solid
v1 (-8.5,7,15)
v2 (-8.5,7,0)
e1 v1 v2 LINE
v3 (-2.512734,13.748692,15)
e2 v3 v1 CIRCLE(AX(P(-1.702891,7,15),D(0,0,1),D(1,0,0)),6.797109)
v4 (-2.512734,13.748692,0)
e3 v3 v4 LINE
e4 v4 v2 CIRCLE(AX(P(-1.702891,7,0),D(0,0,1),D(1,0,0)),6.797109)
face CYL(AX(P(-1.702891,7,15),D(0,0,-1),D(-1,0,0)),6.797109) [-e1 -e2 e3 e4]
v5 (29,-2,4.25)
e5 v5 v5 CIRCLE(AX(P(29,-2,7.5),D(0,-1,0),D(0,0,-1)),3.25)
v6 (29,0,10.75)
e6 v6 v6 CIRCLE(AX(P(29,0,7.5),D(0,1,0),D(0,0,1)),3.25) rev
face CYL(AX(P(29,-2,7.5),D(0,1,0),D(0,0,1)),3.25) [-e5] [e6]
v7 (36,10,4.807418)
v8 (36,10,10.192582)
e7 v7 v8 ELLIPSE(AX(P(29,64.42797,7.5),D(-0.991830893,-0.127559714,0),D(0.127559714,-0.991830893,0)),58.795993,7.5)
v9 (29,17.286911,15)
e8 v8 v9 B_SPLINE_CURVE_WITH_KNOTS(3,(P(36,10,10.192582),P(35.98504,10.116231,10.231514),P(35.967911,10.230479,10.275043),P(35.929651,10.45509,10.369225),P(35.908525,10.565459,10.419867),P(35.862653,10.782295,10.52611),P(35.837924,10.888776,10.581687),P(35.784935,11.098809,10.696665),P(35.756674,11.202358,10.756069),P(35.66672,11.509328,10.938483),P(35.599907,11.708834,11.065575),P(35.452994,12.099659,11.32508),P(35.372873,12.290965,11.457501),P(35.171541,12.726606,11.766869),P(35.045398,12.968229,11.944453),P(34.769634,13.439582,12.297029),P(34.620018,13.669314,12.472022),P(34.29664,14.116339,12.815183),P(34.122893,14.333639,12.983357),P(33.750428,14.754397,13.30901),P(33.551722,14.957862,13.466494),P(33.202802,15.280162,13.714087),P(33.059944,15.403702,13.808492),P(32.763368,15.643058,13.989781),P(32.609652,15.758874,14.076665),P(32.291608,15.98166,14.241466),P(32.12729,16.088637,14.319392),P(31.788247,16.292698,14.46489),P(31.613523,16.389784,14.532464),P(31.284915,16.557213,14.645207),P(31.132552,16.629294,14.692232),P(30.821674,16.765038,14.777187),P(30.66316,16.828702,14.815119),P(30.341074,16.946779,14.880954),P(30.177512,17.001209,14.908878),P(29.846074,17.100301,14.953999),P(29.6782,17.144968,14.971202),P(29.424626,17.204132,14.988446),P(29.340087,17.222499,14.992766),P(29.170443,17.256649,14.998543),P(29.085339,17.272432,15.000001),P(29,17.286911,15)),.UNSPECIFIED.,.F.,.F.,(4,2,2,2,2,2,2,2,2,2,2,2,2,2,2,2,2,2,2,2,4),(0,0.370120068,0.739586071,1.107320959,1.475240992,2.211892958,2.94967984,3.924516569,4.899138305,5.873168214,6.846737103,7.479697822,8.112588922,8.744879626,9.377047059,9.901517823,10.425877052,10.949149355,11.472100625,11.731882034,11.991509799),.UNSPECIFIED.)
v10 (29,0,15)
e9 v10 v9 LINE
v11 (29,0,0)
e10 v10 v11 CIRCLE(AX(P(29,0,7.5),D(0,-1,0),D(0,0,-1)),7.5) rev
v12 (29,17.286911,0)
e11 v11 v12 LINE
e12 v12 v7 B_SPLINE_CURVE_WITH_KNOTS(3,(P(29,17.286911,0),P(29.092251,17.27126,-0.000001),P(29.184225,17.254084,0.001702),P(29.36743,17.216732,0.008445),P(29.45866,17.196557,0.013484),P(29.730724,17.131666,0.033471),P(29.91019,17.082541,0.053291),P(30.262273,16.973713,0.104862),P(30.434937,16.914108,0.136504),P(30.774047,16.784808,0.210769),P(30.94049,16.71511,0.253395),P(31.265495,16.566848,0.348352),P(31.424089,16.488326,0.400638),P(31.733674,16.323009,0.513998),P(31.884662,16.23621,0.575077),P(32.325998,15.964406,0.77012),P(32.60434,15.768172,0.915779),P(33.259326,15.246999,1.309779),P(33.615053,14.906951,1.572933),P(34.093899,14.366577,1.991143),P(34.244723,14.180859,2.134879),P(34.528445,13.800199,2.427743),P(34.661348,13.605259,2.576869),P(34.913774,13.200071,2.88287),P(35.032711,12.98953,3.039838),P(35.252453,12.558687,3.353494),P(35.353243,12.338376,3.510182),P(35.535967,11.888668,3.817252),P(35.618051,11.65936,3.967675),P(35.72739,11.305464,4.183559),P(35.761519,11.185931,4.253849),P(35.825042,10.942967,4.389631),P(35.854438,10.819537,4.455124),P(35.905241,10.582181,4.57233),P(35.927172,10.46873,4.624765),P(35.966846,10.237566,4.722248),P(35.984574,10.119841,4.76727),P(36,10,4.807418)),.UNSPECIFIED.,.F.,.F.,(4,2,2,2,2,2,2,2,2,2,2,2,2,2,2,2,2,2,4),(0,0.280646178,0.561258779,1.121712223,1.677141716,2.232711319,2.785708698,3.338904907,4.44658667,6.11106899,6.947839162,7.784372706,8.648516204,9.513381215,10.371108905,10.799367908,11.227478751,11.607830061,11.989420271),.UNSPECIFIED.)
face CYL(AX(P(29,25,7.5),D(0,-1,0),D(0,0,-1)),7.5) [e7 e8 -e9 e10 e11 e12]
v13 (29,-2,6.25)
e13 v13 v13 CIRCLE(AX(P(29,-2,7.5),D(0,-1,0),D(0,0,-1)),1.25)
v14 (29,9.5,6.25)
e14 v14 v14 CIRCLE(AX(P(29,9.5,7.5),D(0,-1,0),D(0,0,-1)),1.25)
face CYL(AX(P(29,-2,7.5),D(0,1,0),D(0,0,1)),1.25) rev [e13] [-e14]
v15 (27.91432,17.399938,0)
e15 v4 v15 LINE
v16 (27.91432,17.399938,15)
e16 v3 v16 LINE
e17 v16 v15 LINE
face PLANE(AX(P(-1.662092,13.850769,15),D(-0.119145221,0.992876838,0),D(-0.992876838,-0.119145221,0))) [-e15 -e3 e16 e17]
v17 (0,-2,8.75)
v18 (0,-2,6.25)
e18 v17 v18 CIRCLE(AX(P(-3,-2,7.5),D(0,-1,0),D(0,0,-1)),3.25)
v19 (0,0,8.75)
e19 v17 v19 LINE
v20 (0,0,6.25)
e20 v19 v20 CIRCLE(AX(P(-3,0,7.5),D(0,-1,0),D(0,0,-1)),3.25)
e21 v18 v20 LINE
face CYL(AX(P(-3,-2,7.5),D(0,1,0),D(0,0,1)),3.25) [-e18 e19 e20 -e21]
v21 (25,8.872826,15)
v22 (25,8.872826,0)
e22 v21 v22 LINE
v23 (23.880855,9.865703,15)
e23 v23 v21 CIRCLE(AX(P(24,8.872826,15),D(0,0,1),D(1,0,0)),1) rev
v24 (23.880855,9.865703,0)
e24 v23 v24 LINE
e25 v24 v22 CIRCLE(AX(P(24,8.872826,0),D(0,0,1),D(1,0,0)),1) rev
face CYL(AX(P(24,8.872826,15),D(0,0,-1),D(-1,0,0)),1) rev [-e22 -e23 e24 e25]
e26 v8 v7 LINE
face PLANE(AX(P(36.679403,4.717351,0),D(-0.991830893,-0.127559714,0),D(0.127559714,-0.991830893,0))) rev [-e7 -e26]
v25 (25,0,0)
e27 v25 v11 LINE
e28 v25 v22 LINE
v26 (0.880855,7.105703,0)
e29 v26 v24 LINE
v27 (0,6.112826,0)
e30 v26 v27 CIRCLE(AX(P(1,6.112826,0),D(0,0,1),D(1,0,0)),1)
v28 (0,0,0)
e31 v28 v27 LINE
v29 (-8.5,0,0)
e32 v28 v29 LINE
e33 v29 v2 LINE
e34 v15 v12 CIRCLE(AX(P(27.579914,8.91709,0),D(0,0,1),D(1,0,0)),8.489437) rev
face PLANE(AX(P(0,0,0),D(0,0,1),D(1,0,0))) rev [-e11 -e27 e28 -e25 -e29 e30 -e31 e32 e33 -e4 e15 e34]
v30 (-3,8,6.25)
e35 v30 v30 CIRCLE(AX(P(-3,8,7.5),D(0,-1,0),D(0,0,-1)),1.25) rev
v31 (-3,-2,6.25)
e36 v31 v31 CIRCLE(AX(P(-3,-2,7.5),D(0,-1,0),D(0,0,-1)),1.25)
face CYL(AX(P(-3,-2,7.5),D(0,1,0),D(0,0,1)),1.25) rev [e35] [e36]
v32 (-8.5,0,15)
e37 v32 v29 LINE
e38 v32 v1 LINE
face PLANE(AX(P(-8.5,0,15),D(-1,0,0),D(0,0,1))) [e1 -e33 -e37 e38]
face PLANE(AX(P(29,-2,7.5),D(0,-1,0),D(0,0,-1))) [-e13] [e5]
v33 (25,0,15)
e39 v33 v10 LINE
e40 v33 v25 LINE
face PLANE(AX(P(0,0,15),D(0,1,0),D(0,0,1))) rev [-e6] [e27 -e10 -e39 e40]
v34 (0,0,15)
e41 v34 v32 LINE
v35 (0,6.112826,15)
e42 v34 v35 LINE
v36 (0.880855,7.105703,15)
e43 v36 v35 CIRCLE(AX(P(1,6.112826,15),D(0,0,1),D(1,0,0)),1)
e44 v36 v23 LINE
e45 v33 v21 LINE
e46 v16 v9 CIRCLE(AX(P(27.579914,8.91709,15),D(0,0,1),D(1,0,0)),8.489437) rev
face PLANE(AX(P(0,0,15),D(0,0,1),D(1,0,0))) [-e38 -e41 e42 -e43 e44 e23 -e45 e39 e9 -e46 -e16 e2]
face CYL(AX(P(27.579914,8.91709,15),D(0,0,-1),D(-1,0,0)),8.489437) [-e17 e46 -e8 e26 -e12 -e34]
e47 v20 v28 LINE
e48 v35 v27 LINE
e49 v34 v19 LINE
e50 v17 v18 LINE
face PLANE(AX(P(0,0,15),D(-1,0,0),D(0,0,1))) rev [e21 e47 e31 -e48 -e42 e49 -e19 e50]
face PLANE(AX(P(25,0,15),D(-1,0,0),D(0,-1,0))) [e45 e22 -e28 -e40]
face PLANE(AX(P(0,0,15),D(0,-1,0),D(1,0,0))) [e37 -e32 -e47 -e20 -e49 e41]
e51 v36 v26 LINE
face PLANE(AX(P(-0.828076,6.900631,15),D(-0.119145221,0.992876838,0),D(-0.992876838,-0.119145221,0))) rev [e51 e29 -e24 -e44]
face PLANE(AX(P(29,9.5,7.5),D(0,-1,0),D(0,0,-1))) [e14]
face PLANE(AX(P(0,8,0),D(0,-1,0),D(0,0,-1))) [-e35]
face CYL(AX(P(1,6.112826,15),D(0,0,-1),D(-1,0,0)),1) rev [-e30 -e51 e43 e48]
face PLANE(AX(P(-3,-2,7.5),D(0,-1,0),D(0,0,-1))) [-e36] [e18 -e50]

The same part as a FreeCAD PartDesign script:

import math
import FreeCAD as App
import Part
import Sketcher

V = App.Vector
Q = App.Units.Quantity


def add_polygon(sketch, points):
    """Adds a closed chain of lines whose ends are joined by coincident constraints."""
    first, n = sketch.GeometryCount, len(points)
    for a, b in zip(points, points[1:] + points[:1]):
        sketch.addGeometry(Part.LineSegment(App.Vector(*a, 0), App.Vector(*b, 0)), False)
    for i in range(n):
        sketch.addConstraint(Sketcher.Constraint("Coincident", first + i, 2, first + (i + 1) % n, 1))

doc = App.newDocument("Part")
body = doc.addObject("PartDesign::Body", "Body")

# Sketch on XY plane
sketch1 = body.newObject("Sketcher::SketchObject", "Sketch")
sketch1.AttachmentSupport = (doc.getObject("XY_Plane"), [""])
sketch1.MapMode = "FlatFace"
sketch1.addGeometry(Part.LineSegment(V(-8.5, 0, 0), V(0, 0, 0)), False)
sketch1.addGeometry(Part.LineSegment(V(0, 0, 0), V(0, 6.1, 0)), False)
sketch1.addGeometry(Part.ArcOfCircle(Part.Circle(V(1, 6.1, 0), V(0, 0, 1), 1), math.radians(97), math.radians(180)), False)
sketch1.addGeometry(Part.LineSegment(V(0.9, 7.1, 0), V(23.9, 9.9, 0)), False)
sketch1.addGeometry(Part.ArcOfCircle(Part.Circle(V(24, 8.9, 0), V(0, 0, 1), 1), math.radians(0), math.radians(97)), False)
sketch1.addGeometry(Part.LineSegment(V(25, 8.9, 0), V(25, 0, 0)), False)
sketch1.addGeometry(Part.LineSegment(V(25, 0, 0), V(36, 0, 0)), False)
sketch1.addGeometry(Part.LineSegment(V(36, 0, 0), V(36, 10, 0)), False)
sketch1.addGeometry(Part.ArcOfCircle(Part.Circle(V(27.6, 8.9, 0), V(0, 0, 1), 8.5), math.radians(7), math.radians(88)), False)
sketch1.addGeometry(Part.LineSegment(V(27.9, 17.4, 0), V(-2.5, 13.7, 0)), False)
sketch1.addGeometry(Part.ArcOfCircle(Part.Circle(V(-1.7, 7, 0), V(0, 0, 1), 6.8), math.radians(97), math.radians(180)), False)
sketch1.addGeometry(Part.LineSegment(V(-8.5, 7, 0), V(-8.5, 0, 0)), False)
sketch1.addConstraint(Sketcher.Constraint("Coincident", 0, 2, 1, 1))
sketch1.addConstraint(Sketcher.Constraint("Tangent", 1, 2, 2, 2))
sketch1.addConstraint(Sketcher.Constraint("Tangent", 2, 1, 3, 1))
sketch1.addConstraint(Sketcher.Constraint("Tangent", 3, 2, 4, 2))
sketch1.addConstraint(Sketcher.Constraint("Tangent", 4, 1, 5, 1))
sketch1.addConstraint(Sketcher.Constraint("Coincident", 5, 2, 6, 1))
sketch1.addConstraint(Sketcher.Constraint("Coincident", 6, 2, 7, 1))
sketch1.addConstraint(Sketcher.Constraint("Coincident", 7, 2, 8, 1))
sketch1.addConstraint(Sketcher.Constraint("Coincident", 8, 2, 9, 1))
sketch1.addConstraint(Sketcher.Constraint("Tangent", 9, 2, 10, 1))
sketch1.addConstraint(Sketcher.Constraint("Tangent", 10, 2, 11, 1))
sketch1.addConstraint(Sketcher.Constraint("Coincident", 11, 2, 0, 1))
sketch1.addConstraint(Sketcher.Constraint("Horizontal", 0))
sketch1.addConstraint(Sketcher.Constraint("Vertical", 1))
sketch1.addConstraint(Sketcher.Constraint("Vertical", 5))
sketch1.addConstraint(Sketcher.Constraint("Horizontal", 6))
sketch1.addConstraint(Sketcher.Constraint("Vertical", 7))
sketch1.addConstraint(Sketcher.Constraint("Vertical", 11))
sketch1.addConstraint(Sketcher.Constraint("Coincident", 0, 2, -1, 1))
sketch1.addConstraint(Sketcher.Constraint("Equal", 2, 4))
sketch1.addConstraint(Sketcher.Constraint("PointOnObject", 5, 2, -1))
sketch1.addConstraint(Sketcher.Constraint("Parallel", 3, 9))
sketch1.addConstraint(Sketcher.Constraint("Radius", 2, Q("1 mm")))
sketch1.addConstraint(Sketcher.Constraint("DistanceX", 6, 1, 6, 2, Q("11 mm")))
sketch1.addConstraint(Sketcher.Constraint("DistanceY", 7, 1, 7, 2, Q("10 mm")))
sketch1.addConstraint(Sketcher.Constraint("DistanceY", 11, 2, 11, 1, Q("7 mm")))
sketch1.addConstraint(Sketcher.Constraint("DistanceX", 0, 1, 0, 2, Q("8.5 mm")))
sketch1.addConstraint(Sketcher.Constraint("DistanceX", -1, 1, 4, 3, Q("24 mm")))
sketch1.addConstraint(Sketcher.Constraint("Radius", 10, Q("6.797109 mm")))
sketch1.addConstraint(Sketcher.Constraint("DistanceY", 2, 3, 4, 3, Q("2.76 mm")))
sketch1.addConstraint(Sketcher.Constraint("Radius", 8, Q("8.489437 mm")))
sketch1.addConstraint(Sketcher.Constraint("DistanceY", 1, 1, 1, 2, Q("6.112826 mm")))
sketch1.addConstraint(Sketcher.Constraint("DistanceY", -1, 1, 8, 3, Q("8.91709 mm")))
pad1 = body.newObject("PartDesign::Pad", "Pad")
pad1.Profile = sketch1
pad1.Length = 15

# Sketch on XZ plane
sketch2 = body.newObject("Sketcher::SketchObject", "Sketch001")
sketch2.AttachmentSupport = (doc.getObject("XZ_Plane"), [""])
sketch2.MapMode = "FlatFace"
sketch2.addGeometry(Part.LineSegment(V(36, 15, 0), V(29, 15, 0)), False)
sketch2.addGeometry(Part.ArcOfCircle(Part.Circle(V(29, 7.5, 0), V(0, 0, 1), 7.5), math.radians(21), math.radians(90)), False)
sketch2.addGeometry(Part.LineSegment(V(36, 10.2, 0), V(36, 15, 0)), False)
sketch2.addGeometry(Part.LineSegment(V(36, 0, 0), V(36, 4.8, 0)), False)
sketch2.addGeometry(Part.ArcOfCircle(Part.Circle(V(29, 7.5, 0), V(0, 0, 1), 7.5), math.radians(-90), math.radians(-21)), False)
sketch2.addGeometry(Part.LineSegment(V(29, 0, 0), V(36, 0, 0)), False)
sketch2.addConstraint(Sketcher.Constraint("Tangent", 0, 2, 1, 2))
sketch2.addConstraint(Sketcher.Constraint("Coincident", 1, 1, 2, 1))
sketch2.addConstraint(Sketcher.Constraint("Coincident", 2, 2, 0, 1))
sketch2.addConstraint(Sketcher.Constraint("Coincident", 3, 2, 4, 2))
sketch2.addConstraint(Sketcher.Constraint("Tangent", 4, 1, 5, 1))
sketch2.addConstraint(Sketcher.Constraint("Coincident", 5, 2, 3, 1))
sketch2.addConstraint(Sketcher.Constraint("Horizontal", 0))
sketch2.addConstraint(Sketcher.Constraint("Vertical", 2))
sketch2.addConstraint(Sketcher.Constraint("Vertical", 3))
sketch2.addConstraint(Sketcher.Constraint("Horizontal", 5))
sketch2.addConstraint(Sketcher.Constraint("Coincident", 4, 3, 1, 3))
sketch2.addConstraint(Sketcher.Constraint("Equal", 1, 4))
sketch2.addConstraint(Sketcher.Constraint("PointOnObject", 4, 1, -1))
sketch2.addConstraint(Sketcher.Constraint("Vertical", 2, 2, 3, 2))
sketch2.addConstraint(Sketcher.Constraint("Radius", 1, Q("7.5 mm")))
sketch2.addConstraint(Sketcher.Constraint("DistanceX", 0, 2, 0, 1, Q("7 mm")))
sketch2.addConstraint(Sketcher.Constraint("DistanceX", -1, 1, 1, 3, Q("29 mm")))
pocket1 = body.newObject("PartDesign::Pocket", "Pocket")
pocket1.Profile = sketch2
pocket1.Length = 25

# Sketch on XZ plane
sketch3 = body.newObject("Sketcher::SketchObject", "Sketch002")
sketch3.AttachmentSupport = (doc.getObject("XZ_Plane"), [""])
sketch3.MapMode = "FlatFace"
sketch3.addGeometry(Part.ArcOfCircle(Part.Circle(V(29, 8, 0), V(0, 0, 1), 8), math.radians(-21), math.radians(21)), False)
sketch3.addGeometry(Part.LineSegment(V(36, 10, 0), V(36, 5, 0)), False)
sketch3.addConstraint(Sketcher.Constraint("Coincident", 0, 1, 1, 2))
sketch3.addConstraint(Sketcher.Constraint("Coincident", 1, 1, 0, 2))
sketch3.addConstraint(Sketcher.Constraint("Vertical", 1))
sketch3.addConstraint(Sketcher.Constraint("Radius", 0, Q("7.5 mm")))
sketch3.addConstraint(Sketcher.Constraint("DistanceX", -1, 1, 0, 3, Q("29 mm")))
sketch3.addConstraint(Sketcher.Constraint("DistanceX", -1, 1, 0, 1, Q("36 mm")))
sketch3.addConstraint(Sketcher.Constraint("DistanceY", -1, 1, 0, 3, Q("7.5 mm")))
pad2 = body.newObject("PartDesign::Pad", "Pad001")
pad2.Profile = sketch3
pad2.Length = 10
pad2.Reversed = True

# Sketch on XY plane
sketch4 = body.newObject("Sketcher::SketchObject", "Sketch003")
sketch4.AttachmentSupport = (doc.getObject("XY_Plane"), [""])
sketch4.MapMode = "FlatFace"
sketch4.AttachmentOffset = App.Placement(V(0, 0, 15), App.Rotation())
add_polygon(sketch4, [(36.5, 10), (36, 10), (36.5, 6.1)])  # lines 0-2
sketch4.addConstraint(Sketcher.Constraint("Horizontal", 0))
sketch4.addConstraint(Sketcher.Constraint("Vertical", 2))
sketch4.addConstraint(Sketcher.Constraint("DistanceX", 0, 2, 0, 1, Q("0.5 mm")))
sketch4.addConstraint(Sketcher.Constraint("DistanceX", -1, 1, 0, 2, Q("36 mm")))
sketch4.addConstraint(Sketcher.Constraint("DistanceY", -1, 1, 0, 2, Q("10 mm")))
sketch4.addConstraint(Sketcher.Constraint("DistanceY", 2, 1, 2, 2, Q("3.887712 mm")))
pocket2 = body.newObject("PartDesign::Pocket", "Pocket001")
pocket2.Profile = sketch4
pocket2.Length = 15

# Sketch on XZ plane
sketch5 = body.newObject("Sketcher::SketchObject", "Sketch004")
sketch5.AttachmentSupport = (doc.getObject("XZ_Plane"), [""])
sketch5.MapMode = "FlatFace"
sketch5.addGeometry(Part.Circle(V(29, 7.5, 0), V(0, 0, 1), 3.2), False)
sketch5.addGeometry(Part.Circle(V(29, 7.5, 0), V(0, 0, 1), 1.2), False)
sketch5.addGeometry(Part.LineSegment(V(0, 6.2, 0), V(0, 8.8, 0)), False)
sketch5.addGeometry(Part.ArcOfCircle(Part.Circle(V(-3, 7.5, 0), V(0, 0, 1), 3.2), math.radians(23), math.radians(337)), False)
sketch5.addGeometry(Part.Circle(V(-3, 7.5, 0), V(0, 0, 1), 1.2), False)
sketch5.addConstraint(Sketcher.Constraint("Coincident", 2, 1, 3, 2))
sketch5.addConstraint(Sketcher.Constraint("Coincident", 3, 1, 2, 2))
sketch5.addConstraint(Sketcher.Constraint("Vertical", 2))
sketch5.addConstraint(Sketcher.Constraint("Coincident", 1, 3, 0, 3))
sketch5.addConstraint(Sketcher.Constraint("Coincident", 4, 3, 3, 3))
sketch5.addConstraint(Sketcher.Constraint("Equal", 0, 3))
sketch5.addConstraint(Sketcher.Constraint("Equal", 1, 4))
sketch5.addConstraint(Sketcher.Constraint("PointOnObject", 2, 1, -2))
sketch5.addConstraint(Sketcher.Constraint("Horizontal", 1, 3, 3, 3))
sketch5.addConstraint(Sketcher.Constraint("Diameter", 0, Q("6.5 mm")))
sketch5.addConstraint(Sketcher.Constraint("Diameter", 1, Q("2.5 mm")))
sketch5.addConstraint(Sketcher.Constraint("DistanceY", 2, 1, 2, 2, Q("2.5 mm")))
sketch5.addConstraint(Sketcher.Constraint("DistanceX", -1, 1, 0, 3, Q("29 mm")))
sketch5.addConstraint(Sketcher.Constraint("DistanceY", -1, 1, 0, 3, Q("7.5 mm")))
pad3 = body.newObject("PartDesign::Pad", "Pad002")
pad3.Profile = sketch5
pad3.Length = 2

# Sketch on XZ plane
sketch6 = body.newObject("Sketcher::SketchObject", "Sketch005")
sketch6.AttachmentSupport = (doc.getObject("XZ_Plane"), [""])
sketch6.MapMode = "FlatFace"
sketch6.AttachmentOffset = App.Placement(V(0, 0, 2), App.Rotation())
sketch6.addGeometry(Part.Circle(V(29, 7.5, 0), V(0, 0, 1), 1.2), False)
sketch6.addGeometry(Part.Circle(V(-3, 7.5, 0), V(0, 0, 1), 1.2), False)
sketch6.addConstraint(Sketcher.Constraint("Equal", 0, 1))
sketch6.addConstraint(Sketcher.Constraint("Horizontal", 0, 3, 1, 3))
sketch6.addConstraint(Sketcher.Constraint("Diameter", 0, Q("2.5 mm")))
sketch6.addConstraint(Sketcher.Constraint("DistanceX", -1, 1, 0, 3, Q("29 mm")))
sketch6.addConstraint(Sketcher.Constraint("DistanceX", 1, 3, -1, 1, Q("3 mm")))
sketch6.addConstraint(Sketcher.Constraint("DistanceY", -1, 1, 0, 3, Q("7.5 mm")))
pocket3 = body.newObject("PartDesign::Pocket", "Pocket002")
pocket3.Profile = sketch6
pocket3.Length = 10

# Sketch on XZ plane
sketch7 = body.newObject("Sketcher::SketchObject", "Sketch006")
sketch7.AttachmentSupport = (doc.getObject("XZ_Plane"), [""])
sketch7.MapMode = "FlatFace"
sketch7.AttachmentOffset = App.Placement(V(0, 0, -8), App.Rotation())
sketch7.addGeometry(Part.Circle(V(29, 7.5, 0), V(0, 0, 1), 1.2), False)
sketch7.addConstraint(Sketcher.Constraint("Diameter", 0, Q("2.5 mm")))
sketch7.addConstraint(Sketcher.Constraint("DistanceX", -1, 1, 0, 3, Q("29 mm")))
sketch7.addConstraint(Sketcher.Constraint("DistanceY", -1, 1, 0, 3, Q("7.5 mm")))
pocket4 = body.newObject("PartDesign::Pocket", "Pocket003")
pocket4.Profile = sketch7
pocket4.Length = 1.5

doc.recompute()
